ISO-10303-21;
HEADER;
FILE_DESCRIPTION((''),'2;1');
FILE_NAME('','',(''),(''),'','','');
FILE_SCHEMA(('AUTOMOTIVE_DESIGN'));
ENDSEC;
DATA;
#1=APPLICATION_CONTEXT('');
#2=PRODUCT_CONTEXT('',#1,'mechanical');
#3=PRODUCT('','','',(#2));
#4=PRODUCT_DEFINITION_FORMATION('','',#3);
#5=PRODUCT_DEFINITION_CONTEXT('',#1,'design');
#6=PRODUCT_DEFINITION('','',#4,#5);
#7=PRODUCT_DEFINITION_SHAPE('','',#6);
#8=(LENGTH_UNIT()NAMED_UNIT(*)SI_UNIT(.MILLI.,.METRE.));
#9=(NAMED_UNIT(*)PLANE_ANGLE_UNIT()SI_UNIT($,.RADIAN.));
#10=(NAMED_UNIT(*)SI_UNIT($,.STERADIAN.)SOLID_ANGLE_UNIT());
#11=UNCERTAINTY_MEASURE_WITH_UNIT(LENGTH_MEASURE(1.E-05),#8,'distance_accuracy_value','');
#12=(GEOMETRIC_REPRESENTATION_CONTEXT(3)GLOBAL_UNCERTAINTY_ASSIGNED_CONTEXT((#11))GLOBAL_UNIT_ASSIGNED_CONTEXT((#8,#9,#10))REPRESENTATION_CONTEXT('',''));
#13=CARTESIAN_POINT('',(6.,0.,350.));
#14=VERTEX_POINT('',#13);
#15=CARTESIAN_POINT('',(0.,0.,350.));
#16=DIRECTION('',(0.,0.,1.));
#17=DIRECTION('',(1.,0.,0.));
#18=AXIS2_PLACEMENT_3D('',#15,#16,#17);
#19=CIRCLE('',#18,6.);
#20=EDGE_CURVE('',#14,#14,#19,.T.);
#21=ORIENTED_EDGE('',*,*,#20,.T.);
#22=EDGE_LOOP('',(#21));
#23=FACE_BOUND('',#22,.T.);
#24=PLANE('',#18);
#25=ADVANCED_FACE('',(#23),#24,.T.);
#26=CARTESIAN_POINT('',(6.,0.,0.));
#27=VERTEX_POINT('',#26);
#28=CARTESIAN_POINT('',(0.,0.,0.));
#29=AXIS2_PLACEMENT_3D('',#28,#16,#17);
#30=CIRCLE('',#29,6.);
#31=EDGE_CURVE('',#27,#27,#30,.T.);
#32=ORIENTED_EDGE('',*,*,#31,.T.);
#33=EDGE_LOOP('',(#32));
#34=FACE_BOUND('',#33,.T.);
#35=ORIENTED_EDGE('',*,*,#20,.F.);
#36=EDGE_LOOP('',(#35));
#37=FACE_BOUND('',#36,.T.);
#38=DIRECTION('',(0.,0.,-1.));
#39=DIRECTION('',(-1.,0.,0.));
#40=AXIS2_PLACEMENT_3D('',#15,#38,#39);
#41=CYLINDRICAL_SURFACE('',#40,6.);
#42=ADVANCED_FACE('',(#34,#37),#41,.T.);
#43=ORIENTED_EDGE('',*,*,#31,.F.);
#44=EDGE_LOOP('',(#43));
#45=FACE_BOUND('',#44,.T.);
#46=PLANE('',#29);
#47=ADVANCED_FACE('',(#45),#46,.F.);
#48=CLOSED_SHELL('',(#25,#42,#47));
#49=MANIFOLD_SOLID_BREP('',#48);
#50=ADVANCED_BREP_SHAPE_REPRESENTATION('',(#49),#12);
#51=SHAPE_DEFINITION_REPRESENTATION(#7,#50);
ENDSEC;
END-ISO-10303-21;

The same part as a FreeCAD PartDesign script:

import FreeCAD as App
import Part
import Sketcher
from FreeCAD import Vector
Q = App.Units.Quantity

doc = App.newDocument("Part")
body = doc.addObject("PartDesign::Body", "Body")

# Sketch on XY plane
sketch1 = body.newObject("Sketcher::SketchObject", "Sketch")
sketch1.AttachmentSupport = (doc.getObject("XY_Plane"), [""])
sketch1.MapMode = "FlatFace"
sketch1.addGeometry(Part.Circle(Vector(0, 0, 0), Vector(0, 0, 1), 6), False)
sketch1.addConstraint([
    Sketcher.Constraint("Coincident", 0, 3, -1, 1),
    Sketcher.Constraint("Diameter", 0, Q("12 mm")),
])
pad1 = body.newObject("PartDesign::Pad", "Pad")
pad1.Profile = sketch1
pad1.Length = 350

doc.recompute()
